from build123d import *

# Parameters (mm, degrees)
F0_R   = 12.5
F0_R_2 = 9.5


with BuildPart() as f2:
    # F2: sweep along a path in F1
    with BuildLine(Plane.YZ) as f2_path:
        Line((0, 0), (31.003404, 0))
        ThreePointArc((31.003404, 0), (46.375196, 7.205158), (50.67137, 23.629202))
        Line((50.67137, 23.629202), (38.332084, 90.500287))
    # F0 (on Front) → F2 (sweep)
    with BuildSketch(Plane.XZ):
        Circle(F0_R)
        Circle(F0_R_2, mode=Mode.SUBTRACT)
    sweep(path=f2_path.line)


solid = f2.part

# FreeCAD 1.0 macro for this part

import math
import FreeCAD as App
import Part
import Sketcher

V = App.Vector
Q = App.Units.Quantity

doc = App.newDocument("Part")
body = doc.addObject("PartDesign::Body", "Body")

# Sketch on XZ plane
sketch1 = body.newObject("Sketcher::SketchObject", "Sketch")
sketch1.AttachmentSupport = (doc.getObject("XZ_Plane"), [""])
sketch1.MapMode = "FlatFace"
sketch1.addGeometry(Part.Circle(V(0, 0, 0), V(0, 0, 1), 12.5), False)
sketch1.addGeometry(Part.Circle(V(0, 0, 0), V(0, 0, 1), 9.5), False)
sketch1.addConstraint(Sketcher.Constraint("Coincident", 0, 3, -1, 1))
sketch1.addConstraint(Sketcher.Constraint("Coincident", 1, 3, -1, 1))
sketch1.addConstraint(Sketcher.Constraint("Diameter", 0, Q("25 mm")))
sketch1.addConstraint(Sketcher.Constraint("Diameter", 1, Q("19 mm")))

# Sketch on YZ plane
sketch2 = body.newObject("Sketcher::SketchObject", "Sketch001")
sketch2.AttachmentSupport = (doc.getObject("YZ_Plane"), [""])
sketch2.MapMode = "FlatFace"
sketch2.addGeometry(Part.LineSegment(V(0, 0, 0), V(31.003404, 0, 0)), False)
sketch2.addGeometry(Part.ArcOfCircle(Part.Circle(V(31.003403, 20.000001, 0), V(0, 0, 1), 20.000001), math.radians(-89.999996), math.radians(10.454814)), False)
sketch2.addGeometry(Part.LineSegment(V(50.67137, 23.629202, 0), V(38.332084, 90.500287, 0)), False)
sketch2.addConstraint(Sketcher.Constraint("Tangent", 0, 2, 1, 1))
sketch2.addConstraint(Sketcher.Constraint("Tangent", 1, 2, 2, 1))
sketch2.addConstraint(Sketcher.Constraint("Horizontal", 0))
sketch2.addConstraint(Sketcher.Constraint("Coincident", 0, 1, -1, 1))
sketch2.addConstraint(Sketcher.Constraint("Radius", 1, Q("20.000001 mm")))
sketch2.addConstraint(Sketcher.Constraint("Distance", 2, Q("68 mm")))
sketch2.addConstraint(Sketcher.Constraint("DistanceY", -1, 1, 1, 2, Q("23.629202 mm")))
sketch2.addConstraint(Sketcher.Constraint("DistanceX", 0, 1, 0, 2, Q("31.003404 mm")))
doc.recompute()

additivepipe = body.newObject("PartDesign::AdditivePipe", "AdditivePipe")
additivepipe.Profile = sketch1
additivepipe.Spine = (sketch2, ["Edge1", "Edge2", "Edge3"])

doc.recompute()
